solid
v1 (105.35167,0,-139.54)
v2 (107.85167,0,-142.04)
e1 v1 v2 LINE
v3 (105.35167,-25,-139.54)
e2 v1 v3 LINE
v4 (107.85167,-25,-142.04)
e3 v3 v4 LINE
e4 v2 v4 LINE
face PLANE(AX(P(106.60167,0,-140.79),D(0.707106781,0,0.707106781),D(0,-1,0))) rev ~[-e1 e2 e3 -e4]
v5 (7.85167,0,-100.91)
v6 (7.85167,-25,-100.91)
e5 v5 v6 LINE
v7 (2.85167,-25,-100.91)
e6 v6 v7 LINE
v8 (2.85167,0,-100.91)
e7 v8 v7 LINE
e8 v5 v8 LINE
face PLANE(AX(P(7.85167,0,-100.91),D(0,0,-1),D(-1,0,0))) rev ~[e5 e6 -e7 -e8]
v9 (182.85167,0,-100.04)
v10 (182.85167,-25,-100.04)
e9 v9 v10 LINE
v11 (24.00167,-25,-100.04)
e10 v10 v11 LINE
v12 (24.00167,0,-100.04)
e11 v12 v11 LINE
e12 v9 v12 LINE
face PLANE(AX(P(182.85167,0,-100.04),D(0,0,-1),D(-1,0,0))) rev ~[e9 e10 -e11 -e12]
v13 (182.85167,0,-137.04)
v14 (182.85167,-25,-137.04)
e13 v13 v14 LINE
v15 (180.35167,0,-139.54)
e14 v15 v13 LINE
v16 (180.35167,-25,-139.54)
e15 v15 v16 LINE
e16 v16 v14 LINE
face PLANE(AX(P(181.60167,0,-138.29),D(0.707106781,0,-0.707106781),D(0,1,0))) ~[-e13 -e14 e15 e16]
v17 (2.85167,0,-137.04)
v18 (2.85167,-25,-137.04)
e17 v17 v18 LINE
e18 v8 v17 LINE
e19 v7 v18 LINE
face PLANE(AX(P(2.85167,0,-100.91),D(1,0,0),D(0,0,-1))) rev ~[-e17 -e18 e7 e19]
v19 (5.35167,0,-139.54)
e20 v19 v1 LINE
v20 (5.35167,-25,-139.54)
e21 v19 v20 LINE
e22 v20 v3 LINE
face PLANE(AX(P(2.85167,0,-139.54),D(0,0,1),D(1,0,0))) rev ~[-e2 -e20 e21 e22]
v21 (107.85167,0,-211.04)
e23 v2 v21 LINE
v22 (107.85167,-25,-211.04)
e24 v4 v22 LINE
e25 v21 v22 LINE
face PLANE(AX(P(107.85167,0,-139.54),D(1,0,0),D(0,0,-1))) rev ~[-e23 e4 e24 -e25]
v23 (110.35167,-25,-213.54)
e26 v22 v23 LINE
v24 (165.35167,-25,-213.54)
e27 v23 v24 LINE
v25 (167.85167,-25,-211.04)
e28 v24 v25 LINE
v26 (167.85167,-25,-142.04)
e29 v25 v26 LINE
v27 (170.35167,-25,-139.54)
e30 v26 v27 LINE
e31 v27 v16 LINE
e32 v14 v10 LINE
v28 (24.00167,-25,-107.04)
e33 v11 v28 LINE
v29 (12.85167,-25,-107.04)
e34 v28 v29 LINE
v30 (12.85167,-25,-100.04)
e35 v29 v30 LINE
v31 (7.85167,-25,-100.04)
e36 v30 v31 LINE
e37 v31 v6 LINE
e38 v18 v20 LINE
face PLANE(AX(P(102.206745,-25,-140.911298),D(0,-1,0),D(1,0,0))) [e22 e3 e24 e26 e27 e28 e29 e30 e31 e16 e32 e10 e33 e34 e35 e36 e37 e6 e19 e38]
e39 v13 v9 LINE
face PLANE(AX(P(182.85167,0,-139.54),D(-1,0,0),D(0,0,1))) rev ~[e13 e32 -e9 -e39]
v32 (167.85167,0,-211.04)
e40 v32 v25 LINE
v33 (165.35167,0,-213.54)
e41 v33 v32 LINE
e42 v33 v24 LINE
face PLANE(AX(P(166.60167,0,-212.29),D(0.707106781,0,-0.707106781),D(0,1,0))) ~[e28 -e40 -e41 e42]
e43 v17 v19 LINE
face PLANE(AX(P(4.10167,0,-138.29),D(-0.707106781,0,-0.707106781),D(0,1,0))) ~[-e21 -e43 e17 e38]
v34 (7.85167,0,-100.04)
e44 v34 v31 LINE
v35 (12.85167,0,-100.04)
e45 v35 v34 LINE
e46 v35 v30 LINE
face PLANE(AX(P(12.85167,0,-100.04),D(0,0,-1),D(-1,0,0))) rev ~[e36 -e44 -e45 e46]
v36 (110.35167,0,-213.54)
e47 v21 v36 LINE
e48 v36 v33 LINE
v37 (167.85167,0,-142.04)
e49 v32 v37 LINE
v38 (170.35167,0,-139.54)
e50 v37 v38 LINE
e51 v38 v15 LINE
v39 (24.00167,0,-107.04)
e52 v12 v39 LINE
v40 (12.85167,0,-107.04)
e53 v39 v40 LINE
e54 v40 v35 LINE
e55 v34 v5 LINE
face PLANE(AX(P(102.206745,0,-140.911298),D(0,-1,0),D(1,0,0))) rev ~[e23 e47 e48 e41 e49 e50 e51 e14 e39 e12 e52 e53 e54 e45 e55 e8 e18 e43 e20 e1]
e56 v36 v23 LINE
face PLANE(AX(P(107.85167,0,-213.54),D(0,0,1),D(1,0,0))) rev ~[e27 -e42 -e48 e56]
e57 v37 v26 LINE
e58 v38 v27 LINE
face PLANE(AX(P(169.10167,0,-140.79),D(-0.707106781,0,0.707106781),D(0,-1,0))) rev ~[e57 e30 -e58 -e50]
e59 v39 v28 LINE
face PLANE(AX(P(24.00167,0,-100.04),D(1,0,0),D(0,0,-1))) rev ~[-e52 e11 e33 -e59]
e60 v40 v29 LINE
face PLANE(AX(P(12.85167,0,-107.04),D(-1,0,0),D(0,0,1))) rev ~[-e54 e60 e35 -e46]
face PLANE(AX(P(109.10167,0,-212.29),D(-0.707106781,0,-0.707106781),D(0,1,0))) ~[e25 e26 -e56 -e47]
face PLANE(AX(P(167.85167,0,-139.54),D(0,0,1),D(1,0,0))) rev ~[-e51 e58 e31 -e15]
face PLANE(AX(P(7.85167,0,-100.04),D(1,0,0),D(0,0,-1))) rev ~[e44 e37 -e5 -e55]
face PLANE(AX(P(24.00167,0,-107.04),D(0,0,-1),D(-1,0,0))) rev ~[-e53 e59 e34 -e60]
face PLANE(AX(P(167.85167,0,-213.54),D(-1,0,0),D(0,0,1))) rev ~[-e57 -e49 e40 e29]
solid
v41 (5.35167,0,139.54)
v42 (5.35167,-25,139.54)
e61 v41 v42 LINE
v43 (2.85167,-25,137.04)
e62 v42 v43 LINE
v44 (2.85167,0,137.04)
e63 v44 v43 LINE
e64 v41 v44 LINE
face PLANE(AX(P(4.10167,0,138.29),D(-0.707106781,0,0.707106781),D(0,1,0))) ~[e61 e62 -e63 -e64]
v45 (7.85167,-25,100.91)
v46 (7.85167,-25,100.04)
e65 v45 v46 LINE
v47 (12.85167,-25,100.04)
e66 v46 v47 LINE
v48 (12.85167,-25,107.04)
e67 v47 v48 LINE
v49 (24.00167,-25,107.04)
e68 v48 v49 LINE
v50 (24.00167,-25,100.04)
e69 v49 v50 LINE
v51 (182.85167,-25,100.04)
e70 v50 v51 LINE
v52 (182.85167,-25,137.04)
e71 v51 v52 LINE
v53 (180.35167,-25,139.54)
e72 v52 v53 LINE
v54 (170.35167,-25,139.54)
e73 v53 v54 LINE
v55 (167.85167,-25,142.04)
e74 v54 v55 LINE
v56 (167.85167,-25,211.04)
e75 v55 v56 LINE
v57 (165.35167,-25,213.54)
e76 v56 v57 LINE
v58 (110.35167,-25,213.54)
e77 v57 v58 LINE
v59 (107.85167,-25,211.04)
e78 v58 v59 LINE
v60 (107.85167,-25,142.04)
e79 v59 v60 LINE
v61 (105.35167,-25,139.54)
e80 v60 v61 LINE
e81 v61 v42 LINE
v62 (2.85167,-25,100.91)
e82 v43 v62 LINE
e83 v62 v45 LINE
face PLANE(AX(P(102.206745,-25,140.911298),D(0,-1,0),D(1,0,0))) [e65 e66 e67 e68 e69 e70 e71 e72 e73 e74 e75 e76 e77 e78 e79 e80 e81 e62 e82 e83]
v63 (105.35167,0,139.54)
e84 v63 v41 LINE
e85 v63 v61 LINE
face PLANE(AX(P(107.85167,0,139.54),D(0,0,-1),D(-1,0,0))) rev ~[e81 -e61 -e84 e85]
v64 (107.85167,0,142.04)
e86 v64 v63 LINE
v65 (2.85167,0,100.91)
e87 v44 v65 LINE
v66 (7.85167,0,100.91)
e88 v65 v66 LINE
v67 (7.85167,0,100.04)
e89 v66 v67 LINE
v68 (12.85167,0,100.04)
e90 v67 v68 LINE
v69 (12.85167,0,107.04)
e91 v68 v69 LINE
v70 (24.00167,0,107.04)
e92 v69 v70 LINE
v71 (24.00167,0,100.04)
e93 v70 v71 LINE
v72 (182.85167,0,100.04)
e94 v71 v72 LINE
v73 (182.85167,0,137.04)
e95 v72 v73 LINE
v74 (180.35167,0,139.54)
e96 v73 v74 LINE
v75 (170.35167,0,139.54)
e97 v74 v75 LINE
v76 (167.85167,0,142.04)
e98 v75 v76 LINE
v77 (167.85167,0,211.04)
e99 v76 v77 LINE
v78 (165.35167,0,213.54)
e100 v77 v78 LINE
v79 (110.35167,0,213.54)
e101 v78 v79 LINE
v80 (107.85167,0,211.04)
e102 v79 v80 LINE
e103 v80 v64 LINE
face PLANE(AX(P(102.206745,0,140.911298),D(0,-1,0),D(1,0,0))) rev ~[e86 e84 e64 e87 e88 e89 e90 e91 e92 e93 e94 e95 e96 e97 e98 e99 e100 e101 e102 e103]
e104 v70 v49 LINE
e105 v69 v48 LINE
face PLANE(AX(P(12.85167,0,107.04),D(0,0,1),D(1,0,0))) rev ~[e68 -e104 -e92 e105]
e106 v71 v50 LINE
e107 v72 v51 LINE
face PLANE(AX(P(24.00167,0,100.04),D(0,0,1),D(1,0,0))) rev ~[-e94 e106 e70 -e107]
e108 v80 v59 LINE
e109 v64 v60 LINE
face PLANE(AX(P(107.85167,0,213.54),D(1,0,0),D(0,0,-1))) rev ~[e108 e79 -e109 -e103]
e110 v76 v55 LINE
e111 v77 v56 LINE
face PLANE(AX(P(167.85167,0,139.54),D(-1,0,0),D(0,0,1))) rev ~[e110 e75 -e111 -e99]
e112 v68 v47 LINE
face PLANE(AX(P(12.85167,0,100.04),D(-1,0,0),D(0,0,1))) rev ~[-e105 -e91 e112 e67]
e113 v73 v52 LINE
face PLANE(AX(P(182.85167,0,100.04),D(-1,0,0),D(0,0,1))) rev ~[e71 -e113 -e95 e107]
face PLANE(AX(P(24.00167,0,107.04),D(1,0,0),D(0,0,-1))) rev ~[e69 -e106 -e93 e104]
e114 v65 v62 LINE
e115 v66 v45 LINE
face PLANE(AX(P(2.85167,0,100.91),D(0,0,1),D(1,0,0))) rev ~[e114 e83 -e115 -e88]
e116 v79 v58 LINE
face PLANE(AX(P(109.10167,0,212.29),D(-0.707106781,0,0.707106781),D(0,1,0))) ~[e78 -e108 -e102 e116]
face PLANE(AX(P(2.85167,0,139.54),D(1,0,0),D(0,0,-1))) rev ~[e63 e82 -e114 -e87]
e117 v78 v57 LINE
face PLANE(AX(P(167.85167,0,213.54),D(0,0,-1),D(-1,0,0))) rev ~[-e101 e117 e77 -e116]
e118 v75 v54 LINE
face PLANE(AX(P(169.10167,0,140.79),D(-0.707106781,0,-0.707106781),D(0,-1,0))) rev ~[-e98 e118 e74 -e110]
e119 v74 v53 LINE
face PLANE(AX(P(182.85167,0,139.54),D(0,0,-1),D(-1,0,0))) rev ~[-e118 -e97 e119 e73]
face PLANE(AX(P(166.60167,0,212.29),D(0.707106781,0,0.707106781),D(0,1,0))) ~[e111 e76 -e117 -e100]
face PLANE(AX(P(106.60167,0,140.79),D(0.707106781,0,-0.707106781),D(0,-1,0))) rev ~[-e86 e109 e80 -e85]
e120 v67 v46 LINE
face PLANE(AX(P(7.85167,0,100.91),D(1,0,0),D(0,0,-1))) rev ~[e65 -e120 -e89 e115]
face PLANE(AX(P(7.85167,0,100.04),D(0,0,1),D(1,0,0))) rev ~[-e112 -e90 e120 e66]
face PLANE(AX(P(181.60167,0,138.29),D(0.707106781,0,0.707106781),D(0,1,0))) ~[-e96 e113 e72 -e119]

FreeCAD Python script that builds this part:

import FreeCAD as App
import Part
import Sketcher
from FreeCAD import Vector
Q = App.Units.Quantity


def edges_at(feature, points):
    """Names of the edges that pass closest to the given points."""
    edges = feature.Shape.Edges
    near = lambda p: min(range(len(edges)), key=lambda i: edges[i].distToShape(Part.Vertex(*p))[0])
    return sorted({f"Edge{near(p) + 1}" for p in points})


def add_polygon(sketch, points):
    """Adds a closed chain of lines whose ends are joined by coincident constraints."""
    first, n = sketch.GeometryCount, len(points)
    for a, b in zip(points, points[1:] + points[:1]):
        sketch.addGeometry(Part.LineSegment(App.Vector(*a, 0), App.Vector(*b, 0)), False)
    for i in range(n):
        sketch.addConstraint(Sketcher.Constraint("Coincident", first + i, 2, first + (i + 1) % n, 1))

doc = App.newDocument("Part")
params = doc.addObject("Spreadsheet::Sheet", "Params")
for row, (alias, value) in enumerate([
    ("sketch1_width", "5 mm"),
    ("sketch1_width2", "15 mm"),
    ("sketch1_width3", "60 mm"),
    ("sketch1_width4", "105 mm"),
    ("sketch1_height", "7 mm"),
    ("pad1_length", "25 mm"),
    ("chamfer_size", "2.5 mm"),
], start=1):
    params.set(f"A{row}", alias)
    params.set(f"B{row}", "=" + value)
    params.setAlias(f"B{row}", alias)

body = doc.addObject("PartDesign::Body", "Body")
body.AllowCompound = True

# Sketch on XZ plane
sketch1 = doc.addObject("Sketcher::SketchObject", "Sketch")
body.addObject(sketch1)
sketch1.AttachmentSupport = (doc.XZ_Plane, [""])
sketch1.MapMode = "FlatFace"
add_polygon(sketch1, [(7.9, 100), (12.9, 100), (12.9, 107), (24, 107), (24, 100), (182.9, 100), (182.9, 139.5), (167.9, 139.5), (167.9, 213.5), (107.9, 213.5), (107.9, 139.5), (2.9, 139.5), (2.9, 100.9), (7.9, 100.9)])  # lines 0-13
add_polygon(sketch1, [(182.9, -100), (24, -100), (24, -107), (12.9, -107), (12.9, -100), (7.9, -100), (7.9, -100.9), (2.9, -100.9), (2.9, -139.5), (107.9, -139.5), (107.9, -213.5), (167.9, -213.5), (167.9, -139.5), (182.9, -139.5)])  # lines 14-27
sketch1.addConstraint([
    Sketcher.Constraint("Horizontal", 0),
    Sketcher.Constraint("Vertical", 1),
    Sketcher.Constraint("Horizontal", 2),
    Sketcher.Constraint("Vertical", 3),
    Sketcher.Constraint("Horizontal", 4),
    Sketcher.Constraint("Vertical", 5),
    Sketcher.Constraint("Horizontal", 6),
    Sketcher.Constraint("Vertical", 7),
    Sketcher.Constraint("Horizontal", 8),
    Sketcher.Constraint("Vertical", 9),
    Sketcher.Constraint("Horizontal", 10),
    Sketcher.Constraint("Vertical", 11),
    Sketcher.Constraint("Horizontal", 12),
    Sketcher.Constraint("Vertical", 13),
    Sketcher.Constraint("Horizontal", 14),
    Sketcher.Constraint("Vertical", 15),
    Sketcher.Constraint("Horizontal", 16),
    Sketcher.Constraint("Vertical", 17),
    Sketcher.Constraint("Horizontal", 18),
    Sketcher.Constraint("Vertical", 19),
    Sketcher.Constraint("Horizontal", 20),
    Sketcher.Constraint("Vertical", 21),
    Sketcher.Constraint("Horizontal", 22),
    Sketcher.Constraint("Vertical", 23),
    Sketcher.Constraint("Horizontal", 24),
    Sketcher.Constraint("Vertical", 25),
    Sketcher.Constraint("Horizontal", 26),
    Sketcher.Constraint("Vertical", 27),
    Sketcher.Constraint("Symmetric", 3, 2, 14, 2, -1),
    Sketcher.Constraint("Symmetric", 1, 2, 16, 2, -1),
    Sketcher.Constraint("Symmetric", 13, 2, 18, 2, -1),
    Sketcher.Constraint("Symmetric", 11, 2, 20, 2, -1),
    Sketcher.Constraint("Symmetric", 9, 2, 22, 2, -1),
    Sketcher.Constraint("Symmetric", 7, 2, 24, 2, -1),
    Sketcher.Constraint("Symmetric", 5, 2, 26, 2, -1),
    Sketcher.Constraint("Horizontal", 0, 2, 3, 2),
    Sketcher.Constraint("Horizontal", 6, 2, 9, 2),
    Sketcher.Constraint("Equal", 0, 12),
    Sketcher.Constraint("DistanceX", 0, 1, 0, 2, Q("5 mm")),
    Sketcher.Constraint("DistanceX", 6, 2, 6, 1, Q("15 mm")),
    Sketcher.Constraint("DistanceX", 8, 2, 8, 1, Q("60 mm")),
    Sketcher.Constraint("DistanceX", 10, 2, 10, 1, Q("105 mm")),
    Sketcher.Constraint("DistanceY", 1, 1, 1, 2, Q("7 mm")),
    Sketcher.Constraint("DistanceY", 7, 1, 7, 2, Q("74 mm")),
    Sketcher.Constraint("DistanceY", 5, 1, 5, 2, Q("39.5 mm")),
    Sketcher.Constraint("DistanceX", 2, 1, 2, 2, Q("11.15 mm")),
    Sketcher.Constraint("DistanceY", 11, 2, 11, 1, Q("38.63 mm")),
    Sketcher.Constraint("DistanceY", -1, 1, 0, 2, Q("100.04 mm")),
    Sketcher.Constraint("DistanceX", -1, 1, 0, 2, Q("12.85167 mm")),
])
sketch1.setExpression("Constraints[66]", "Params.sketch1_width")
sketch1.setExpression("Constraints[67]", "Params.sketch1_width2")
sketch1.setExpression("Constraints[68]", "Params.sketch1_width3")
sketch1.setExpression("Constraints[69]", "Params.sketch1_width4")
sketch1.setExpression("Constraints[70]", "Params.sketch1_height")
pad1 = doc.addObject("PartDesign::Pad", "Pad")
body.addObject(pad1)
pad1.Profile = sketch1
pad1.setExpression("Length", "Params.pad1_length")
doc.recompute()

chamfer = doc.addObject("PartDesign::Chamfer", "Chamfer")
body.addObject(chamfer)
chamfer.Base = (pad1, edges_at(pad1, [
    (2.852, -12.5, 139.54),
    (107.852, -12.5, 139.54),
    (107.852, -12.5, 213.54),
    (167.852, -12.5, 213.54),
    (167.852, -12.5, 139.54),
    (182.852, -12.5, 139.54),
    (2.852, -12.5, -139.54),
    (107.852, -12.5, -139.54),
    (107.852, -12.5, -213.54),
    (167.852, -12.5, -213.54),
    (167.852, -12.5, -139.54),
    (182.852, -12.5, -139.54),
]))
chamfer.setExpression("Size", "Params.chamfer_size")

doc.recompute()
